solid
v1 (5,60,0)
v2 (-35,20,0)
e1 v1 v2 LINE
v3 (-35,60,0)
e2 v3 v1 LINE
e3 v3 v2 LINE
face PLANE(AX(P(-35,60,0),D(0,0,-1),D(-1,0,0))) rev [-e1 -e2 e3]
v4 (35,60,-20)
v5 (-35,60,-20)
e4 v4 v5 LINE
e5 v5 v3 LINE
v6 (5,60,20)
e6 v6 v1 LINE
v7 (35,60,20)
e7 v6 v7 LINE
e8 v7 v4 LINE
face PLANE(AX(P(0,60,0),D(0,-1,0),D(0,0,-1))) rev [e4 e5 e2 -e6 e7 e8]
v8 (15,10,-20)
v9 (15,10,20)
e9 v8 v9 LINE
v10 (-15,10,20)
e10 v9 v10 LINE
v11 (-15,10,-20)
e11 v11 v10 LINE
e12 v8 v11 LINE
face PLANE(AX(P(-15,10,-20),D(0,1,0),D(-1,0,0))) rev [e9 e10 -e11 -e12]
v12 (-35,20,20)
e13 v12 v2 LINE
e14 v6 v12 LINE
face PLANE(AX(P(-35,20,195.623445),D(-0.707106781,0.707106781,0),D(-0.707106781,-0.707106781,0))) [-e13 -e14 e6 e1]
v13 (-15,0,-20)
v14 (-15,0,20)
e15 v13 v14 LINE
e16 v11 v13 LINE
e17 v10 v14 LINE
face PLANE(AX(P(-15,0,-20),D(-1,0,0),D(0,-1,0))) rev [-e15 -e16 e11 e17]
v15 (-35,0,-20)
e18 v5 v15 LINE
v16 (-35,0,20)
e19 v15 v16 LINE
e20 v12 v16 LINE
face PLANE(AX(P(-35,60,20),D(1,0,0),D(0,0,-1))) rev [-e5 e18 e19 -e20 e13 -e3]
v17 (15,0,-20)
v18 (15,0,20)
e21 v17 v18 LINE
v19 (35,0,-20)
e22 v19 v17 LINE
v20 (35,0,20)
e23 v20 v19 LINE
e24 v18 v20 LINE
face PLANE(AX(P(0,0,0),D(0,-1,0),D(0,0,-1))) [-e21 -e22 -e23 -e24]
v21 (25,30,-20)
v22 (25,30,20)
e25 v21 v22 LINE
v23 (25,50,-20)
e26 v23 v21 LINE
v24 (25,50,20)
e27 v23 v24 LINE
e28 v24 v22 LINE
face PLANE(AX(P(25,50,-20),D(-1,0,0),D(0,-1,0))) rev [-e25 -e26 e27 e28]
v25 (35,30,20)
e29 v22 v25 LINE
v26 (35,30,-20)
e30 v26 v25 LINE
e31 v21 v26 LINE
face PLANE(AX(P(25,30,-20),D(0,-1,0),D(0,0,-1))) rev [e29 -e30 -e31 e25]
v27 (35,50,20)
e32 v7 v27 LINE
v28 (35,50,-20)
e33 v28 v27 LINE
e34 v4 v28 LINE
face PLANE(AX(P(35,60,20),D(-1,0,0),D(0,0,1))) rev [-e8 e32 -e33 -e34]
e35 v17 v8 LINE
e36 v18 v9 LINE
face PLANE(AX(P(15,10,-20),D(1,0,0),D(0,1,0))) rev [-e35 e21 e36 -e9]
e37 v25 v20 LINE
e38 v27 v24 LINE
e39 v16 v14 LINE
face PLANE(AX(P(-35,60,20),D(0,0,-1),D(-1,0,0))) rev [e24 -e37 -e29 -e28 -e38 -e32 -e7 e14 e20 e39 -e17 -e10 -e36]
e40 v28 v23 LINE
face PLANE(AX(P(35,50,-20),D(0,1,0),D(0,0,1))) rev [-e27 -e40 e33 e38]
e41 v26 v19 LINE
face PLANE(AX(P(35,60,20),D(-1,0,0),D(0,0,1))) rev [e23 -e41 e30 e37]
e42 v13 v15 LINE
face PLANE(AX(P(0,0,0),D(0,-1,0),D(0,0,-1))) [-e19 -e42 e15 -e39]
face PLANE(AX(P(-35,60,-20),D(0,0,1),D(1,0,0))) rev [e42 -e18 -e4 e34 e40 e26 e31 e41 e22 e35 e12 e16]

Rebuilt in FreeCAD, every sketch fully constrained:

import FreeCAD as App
import Part
import Sketcher
Q = App.Units.Quantity


def add_polygon(sketch, points):
    """Adds a closed chain of lines whose ends are joined by coincident constraints."""
    first, n = sketch.GeometryCount, len(points)
    for a, b in zip(points, points[1:] + points[:1]):
        sketch.addGeometry(Part.LineSegment(App.Vector(*a, 0), App.Vector(*b, 0)), False)
    for i in range(n):
        sketch.addConstraint(Sketcher.Constraint("Coincident", first + i, 2, first + (i + 1) % n, 1))

doc = App.newDocument("Part")
body = doc.addObject("PartDesign::Body", "Body")

sketch1 = doc.addObject("Sketcher::SketchObject", "Sketch")
body.addObject(sketch1)
sketch1.AttachmentSupport = (doc.XZ_Plane, [""])
sketch1.MapMode = "FlatFace"
add_polygon(sketch1, [(-35, -20), (-35, 20), (35, 20), (35, -20)])
sketch1.addConstraint(Sketcher.Constraint("Vertical", 0))
sketch1.addConstraint(Sketcher.Constraint("Horizontal", 1))
sketch1.addConstraint(Sketcher.Constraint("Vertical", 2))
sketch1.addConstraint(Sketcher.Constraint("Horizontal", 3))
sketch1.addConstraint(Sketcher.Constraint("Symmetric", 0, 2, 2, 2, -1, 1))
sketch1.addConstraint(Sketcher.Constraint("DistanceX", 1, 1, 1, 2, 70.0))
sketch1.addConstraint(Sketcher.Constraint("DistanceY", 0, 1, 0, 2, 40.0))
pad1 = doc.addObject("PartDesign::Pad", "Pad")
body.addObject(pad1)
pad1.Profile = sketch1
pad1.Length = 60
pad1.Reversed = True

sketch2 = doc.addObject("Sketcher::SketchObject", "Sketch001")
body.addObject(sketch2)
sketch2.AttachmentSupport = (doc.XY_Plane, [""])
sketch2.MapMode = "FlatFace"
sketch2.AttachmentOffset = App.Placement(App.Vector(0, 0, 20), App.Rotation())
add_polygon(sketch2, [(-15, 10), (-15, 0), (15, 0), (15, 10)])
sketch2.addConstraint(Sketcher.Constraint("Vertical", 0))
sketch2.addConstraint(Sketcher.Constraint("Horizontal", 1))
sketch2.addConstraint(Sketcher.Constraint("Vertical", 2))
sketch2.addConstraint(Sketcher.Constraint("Horizontal", 3))
sketch2.addConstraint(Sketcher.Constraint("Symmetric", 0, 2, 1, 2, -1, 1))
sketch2.addConstraint(Sketcher.Constraint("DistanceX", 1, 1, 1, 2, 30.0))
sketch2.addConstraint(Sketcher.Constraint("DistanceY", 0, 2, 0, 1, 10.0))
pocket1 = doc.addObject("PartDesign::Pocket", "Pocket")
body.addObject(pocket1)
pocket1.Profile = sketch2
pocket1.Type = "ThroughAll"

sketch3 = doc.addObject("Sketcher::SketchObject", "Sketch002")
body.addObject(sketch3)
sketch3.AttachmentSupport = (doc.XY_Plane, [""])
sketch3.MapMode = "FlatFace"
sketch3.AttachmentOffset = App.Placement(App.Vector(0, 0, 20), App.Rotation())
add_polygon(sketch3, [(25, 50), (25, 30), (35, 30), (35, 50)])
sketch3.addConstraint(Sketcher.Constraint("Vertical", 0))
sketch3.addConstraint(Sketcher.Constraint("Horizontal", 1))
sketch3.addConstraint(Sketcher.Constraint("Vertical", 2))
sketch3.addConstraint(Sketcher.Constraint("Horizontal", 3))
sketch3.addConstraint(Sketcher.Constraint("DistanceX", 1, 1, 1, 2, 10.0))
sketch3.addConstraint(Sketcher.Constraint("DistanceY", 0, 2, 0, 1, 20.0))
sketch3.addConstraint(Sketcher.Constraint("DistanceX", -1, 1, 0, 2, 25.0))
sketch3.addConstraint(Sketcher.Constraint("DistanceY", -1, 1, 0, 2, 30.0))
pocket2 = doc.addObject("PartDesign::Pocket", "Pocket001")
body.addObject(pocket2)
pocket2.Profile = sketch3
pocket2.Type = "ThroughAll"

sketch4 = doc.addObject("Sketcher::SketchObject", "Sketch003")
body.addObject(sketch4)
sketch4.AttachmentSupport = (doc.XY_Plane, [""])
sketch4.MapMode = "FlatFace"
sketch4.AttachmentOffset = App.Placement(App.Vector(0, 0, 20), App.Rotation())
add_polygon(sketch4, [(-156.08861, -101.08861), (126.08861, 181.08861), (-116.08861, 423.265831), (-398.265831, 141.08861)])
sketch4.addConstraint(Sketcher.Constraint("Perpendicular", 0, 1))
sketch4.addConstraint(Sketcher.Constraint("Perpendicular", 1, 2))
sketch4.addConstraint(Sketcher.Constraint("Perpendicular", 2, 3))
sketch4.addConstraint(Sketcher.Constraint("Angle", 0, Q("45 deg")))
sketch4.addConstraint(Sketcher.Constraint("DistanceY", 2, 2, 0, 2, 40.0))
sketch4.addConstraint(Sketcher.Constraint("Distance", 1, 342.49031))
sketch4.addConstraint(Sketcher.Constraint("DistanceX", -1, 1, 0, 2, 126.08861))
sketch4.addConstraint(Sketcher.Constraint("DistanceY", -1, 1, 0, 2, 181.08861))
pocket3 = doc.addObject("PartDesign::Pocket", "Pocket002")
body.addObject(pocket3)
pocket3.Profile = sketch4
pocket3.Type = "TwoLengths"
pocket3.Length = 81.156098
pocket3.Length2 = 20
pocket3.Reversed = True

doc.recompute()
